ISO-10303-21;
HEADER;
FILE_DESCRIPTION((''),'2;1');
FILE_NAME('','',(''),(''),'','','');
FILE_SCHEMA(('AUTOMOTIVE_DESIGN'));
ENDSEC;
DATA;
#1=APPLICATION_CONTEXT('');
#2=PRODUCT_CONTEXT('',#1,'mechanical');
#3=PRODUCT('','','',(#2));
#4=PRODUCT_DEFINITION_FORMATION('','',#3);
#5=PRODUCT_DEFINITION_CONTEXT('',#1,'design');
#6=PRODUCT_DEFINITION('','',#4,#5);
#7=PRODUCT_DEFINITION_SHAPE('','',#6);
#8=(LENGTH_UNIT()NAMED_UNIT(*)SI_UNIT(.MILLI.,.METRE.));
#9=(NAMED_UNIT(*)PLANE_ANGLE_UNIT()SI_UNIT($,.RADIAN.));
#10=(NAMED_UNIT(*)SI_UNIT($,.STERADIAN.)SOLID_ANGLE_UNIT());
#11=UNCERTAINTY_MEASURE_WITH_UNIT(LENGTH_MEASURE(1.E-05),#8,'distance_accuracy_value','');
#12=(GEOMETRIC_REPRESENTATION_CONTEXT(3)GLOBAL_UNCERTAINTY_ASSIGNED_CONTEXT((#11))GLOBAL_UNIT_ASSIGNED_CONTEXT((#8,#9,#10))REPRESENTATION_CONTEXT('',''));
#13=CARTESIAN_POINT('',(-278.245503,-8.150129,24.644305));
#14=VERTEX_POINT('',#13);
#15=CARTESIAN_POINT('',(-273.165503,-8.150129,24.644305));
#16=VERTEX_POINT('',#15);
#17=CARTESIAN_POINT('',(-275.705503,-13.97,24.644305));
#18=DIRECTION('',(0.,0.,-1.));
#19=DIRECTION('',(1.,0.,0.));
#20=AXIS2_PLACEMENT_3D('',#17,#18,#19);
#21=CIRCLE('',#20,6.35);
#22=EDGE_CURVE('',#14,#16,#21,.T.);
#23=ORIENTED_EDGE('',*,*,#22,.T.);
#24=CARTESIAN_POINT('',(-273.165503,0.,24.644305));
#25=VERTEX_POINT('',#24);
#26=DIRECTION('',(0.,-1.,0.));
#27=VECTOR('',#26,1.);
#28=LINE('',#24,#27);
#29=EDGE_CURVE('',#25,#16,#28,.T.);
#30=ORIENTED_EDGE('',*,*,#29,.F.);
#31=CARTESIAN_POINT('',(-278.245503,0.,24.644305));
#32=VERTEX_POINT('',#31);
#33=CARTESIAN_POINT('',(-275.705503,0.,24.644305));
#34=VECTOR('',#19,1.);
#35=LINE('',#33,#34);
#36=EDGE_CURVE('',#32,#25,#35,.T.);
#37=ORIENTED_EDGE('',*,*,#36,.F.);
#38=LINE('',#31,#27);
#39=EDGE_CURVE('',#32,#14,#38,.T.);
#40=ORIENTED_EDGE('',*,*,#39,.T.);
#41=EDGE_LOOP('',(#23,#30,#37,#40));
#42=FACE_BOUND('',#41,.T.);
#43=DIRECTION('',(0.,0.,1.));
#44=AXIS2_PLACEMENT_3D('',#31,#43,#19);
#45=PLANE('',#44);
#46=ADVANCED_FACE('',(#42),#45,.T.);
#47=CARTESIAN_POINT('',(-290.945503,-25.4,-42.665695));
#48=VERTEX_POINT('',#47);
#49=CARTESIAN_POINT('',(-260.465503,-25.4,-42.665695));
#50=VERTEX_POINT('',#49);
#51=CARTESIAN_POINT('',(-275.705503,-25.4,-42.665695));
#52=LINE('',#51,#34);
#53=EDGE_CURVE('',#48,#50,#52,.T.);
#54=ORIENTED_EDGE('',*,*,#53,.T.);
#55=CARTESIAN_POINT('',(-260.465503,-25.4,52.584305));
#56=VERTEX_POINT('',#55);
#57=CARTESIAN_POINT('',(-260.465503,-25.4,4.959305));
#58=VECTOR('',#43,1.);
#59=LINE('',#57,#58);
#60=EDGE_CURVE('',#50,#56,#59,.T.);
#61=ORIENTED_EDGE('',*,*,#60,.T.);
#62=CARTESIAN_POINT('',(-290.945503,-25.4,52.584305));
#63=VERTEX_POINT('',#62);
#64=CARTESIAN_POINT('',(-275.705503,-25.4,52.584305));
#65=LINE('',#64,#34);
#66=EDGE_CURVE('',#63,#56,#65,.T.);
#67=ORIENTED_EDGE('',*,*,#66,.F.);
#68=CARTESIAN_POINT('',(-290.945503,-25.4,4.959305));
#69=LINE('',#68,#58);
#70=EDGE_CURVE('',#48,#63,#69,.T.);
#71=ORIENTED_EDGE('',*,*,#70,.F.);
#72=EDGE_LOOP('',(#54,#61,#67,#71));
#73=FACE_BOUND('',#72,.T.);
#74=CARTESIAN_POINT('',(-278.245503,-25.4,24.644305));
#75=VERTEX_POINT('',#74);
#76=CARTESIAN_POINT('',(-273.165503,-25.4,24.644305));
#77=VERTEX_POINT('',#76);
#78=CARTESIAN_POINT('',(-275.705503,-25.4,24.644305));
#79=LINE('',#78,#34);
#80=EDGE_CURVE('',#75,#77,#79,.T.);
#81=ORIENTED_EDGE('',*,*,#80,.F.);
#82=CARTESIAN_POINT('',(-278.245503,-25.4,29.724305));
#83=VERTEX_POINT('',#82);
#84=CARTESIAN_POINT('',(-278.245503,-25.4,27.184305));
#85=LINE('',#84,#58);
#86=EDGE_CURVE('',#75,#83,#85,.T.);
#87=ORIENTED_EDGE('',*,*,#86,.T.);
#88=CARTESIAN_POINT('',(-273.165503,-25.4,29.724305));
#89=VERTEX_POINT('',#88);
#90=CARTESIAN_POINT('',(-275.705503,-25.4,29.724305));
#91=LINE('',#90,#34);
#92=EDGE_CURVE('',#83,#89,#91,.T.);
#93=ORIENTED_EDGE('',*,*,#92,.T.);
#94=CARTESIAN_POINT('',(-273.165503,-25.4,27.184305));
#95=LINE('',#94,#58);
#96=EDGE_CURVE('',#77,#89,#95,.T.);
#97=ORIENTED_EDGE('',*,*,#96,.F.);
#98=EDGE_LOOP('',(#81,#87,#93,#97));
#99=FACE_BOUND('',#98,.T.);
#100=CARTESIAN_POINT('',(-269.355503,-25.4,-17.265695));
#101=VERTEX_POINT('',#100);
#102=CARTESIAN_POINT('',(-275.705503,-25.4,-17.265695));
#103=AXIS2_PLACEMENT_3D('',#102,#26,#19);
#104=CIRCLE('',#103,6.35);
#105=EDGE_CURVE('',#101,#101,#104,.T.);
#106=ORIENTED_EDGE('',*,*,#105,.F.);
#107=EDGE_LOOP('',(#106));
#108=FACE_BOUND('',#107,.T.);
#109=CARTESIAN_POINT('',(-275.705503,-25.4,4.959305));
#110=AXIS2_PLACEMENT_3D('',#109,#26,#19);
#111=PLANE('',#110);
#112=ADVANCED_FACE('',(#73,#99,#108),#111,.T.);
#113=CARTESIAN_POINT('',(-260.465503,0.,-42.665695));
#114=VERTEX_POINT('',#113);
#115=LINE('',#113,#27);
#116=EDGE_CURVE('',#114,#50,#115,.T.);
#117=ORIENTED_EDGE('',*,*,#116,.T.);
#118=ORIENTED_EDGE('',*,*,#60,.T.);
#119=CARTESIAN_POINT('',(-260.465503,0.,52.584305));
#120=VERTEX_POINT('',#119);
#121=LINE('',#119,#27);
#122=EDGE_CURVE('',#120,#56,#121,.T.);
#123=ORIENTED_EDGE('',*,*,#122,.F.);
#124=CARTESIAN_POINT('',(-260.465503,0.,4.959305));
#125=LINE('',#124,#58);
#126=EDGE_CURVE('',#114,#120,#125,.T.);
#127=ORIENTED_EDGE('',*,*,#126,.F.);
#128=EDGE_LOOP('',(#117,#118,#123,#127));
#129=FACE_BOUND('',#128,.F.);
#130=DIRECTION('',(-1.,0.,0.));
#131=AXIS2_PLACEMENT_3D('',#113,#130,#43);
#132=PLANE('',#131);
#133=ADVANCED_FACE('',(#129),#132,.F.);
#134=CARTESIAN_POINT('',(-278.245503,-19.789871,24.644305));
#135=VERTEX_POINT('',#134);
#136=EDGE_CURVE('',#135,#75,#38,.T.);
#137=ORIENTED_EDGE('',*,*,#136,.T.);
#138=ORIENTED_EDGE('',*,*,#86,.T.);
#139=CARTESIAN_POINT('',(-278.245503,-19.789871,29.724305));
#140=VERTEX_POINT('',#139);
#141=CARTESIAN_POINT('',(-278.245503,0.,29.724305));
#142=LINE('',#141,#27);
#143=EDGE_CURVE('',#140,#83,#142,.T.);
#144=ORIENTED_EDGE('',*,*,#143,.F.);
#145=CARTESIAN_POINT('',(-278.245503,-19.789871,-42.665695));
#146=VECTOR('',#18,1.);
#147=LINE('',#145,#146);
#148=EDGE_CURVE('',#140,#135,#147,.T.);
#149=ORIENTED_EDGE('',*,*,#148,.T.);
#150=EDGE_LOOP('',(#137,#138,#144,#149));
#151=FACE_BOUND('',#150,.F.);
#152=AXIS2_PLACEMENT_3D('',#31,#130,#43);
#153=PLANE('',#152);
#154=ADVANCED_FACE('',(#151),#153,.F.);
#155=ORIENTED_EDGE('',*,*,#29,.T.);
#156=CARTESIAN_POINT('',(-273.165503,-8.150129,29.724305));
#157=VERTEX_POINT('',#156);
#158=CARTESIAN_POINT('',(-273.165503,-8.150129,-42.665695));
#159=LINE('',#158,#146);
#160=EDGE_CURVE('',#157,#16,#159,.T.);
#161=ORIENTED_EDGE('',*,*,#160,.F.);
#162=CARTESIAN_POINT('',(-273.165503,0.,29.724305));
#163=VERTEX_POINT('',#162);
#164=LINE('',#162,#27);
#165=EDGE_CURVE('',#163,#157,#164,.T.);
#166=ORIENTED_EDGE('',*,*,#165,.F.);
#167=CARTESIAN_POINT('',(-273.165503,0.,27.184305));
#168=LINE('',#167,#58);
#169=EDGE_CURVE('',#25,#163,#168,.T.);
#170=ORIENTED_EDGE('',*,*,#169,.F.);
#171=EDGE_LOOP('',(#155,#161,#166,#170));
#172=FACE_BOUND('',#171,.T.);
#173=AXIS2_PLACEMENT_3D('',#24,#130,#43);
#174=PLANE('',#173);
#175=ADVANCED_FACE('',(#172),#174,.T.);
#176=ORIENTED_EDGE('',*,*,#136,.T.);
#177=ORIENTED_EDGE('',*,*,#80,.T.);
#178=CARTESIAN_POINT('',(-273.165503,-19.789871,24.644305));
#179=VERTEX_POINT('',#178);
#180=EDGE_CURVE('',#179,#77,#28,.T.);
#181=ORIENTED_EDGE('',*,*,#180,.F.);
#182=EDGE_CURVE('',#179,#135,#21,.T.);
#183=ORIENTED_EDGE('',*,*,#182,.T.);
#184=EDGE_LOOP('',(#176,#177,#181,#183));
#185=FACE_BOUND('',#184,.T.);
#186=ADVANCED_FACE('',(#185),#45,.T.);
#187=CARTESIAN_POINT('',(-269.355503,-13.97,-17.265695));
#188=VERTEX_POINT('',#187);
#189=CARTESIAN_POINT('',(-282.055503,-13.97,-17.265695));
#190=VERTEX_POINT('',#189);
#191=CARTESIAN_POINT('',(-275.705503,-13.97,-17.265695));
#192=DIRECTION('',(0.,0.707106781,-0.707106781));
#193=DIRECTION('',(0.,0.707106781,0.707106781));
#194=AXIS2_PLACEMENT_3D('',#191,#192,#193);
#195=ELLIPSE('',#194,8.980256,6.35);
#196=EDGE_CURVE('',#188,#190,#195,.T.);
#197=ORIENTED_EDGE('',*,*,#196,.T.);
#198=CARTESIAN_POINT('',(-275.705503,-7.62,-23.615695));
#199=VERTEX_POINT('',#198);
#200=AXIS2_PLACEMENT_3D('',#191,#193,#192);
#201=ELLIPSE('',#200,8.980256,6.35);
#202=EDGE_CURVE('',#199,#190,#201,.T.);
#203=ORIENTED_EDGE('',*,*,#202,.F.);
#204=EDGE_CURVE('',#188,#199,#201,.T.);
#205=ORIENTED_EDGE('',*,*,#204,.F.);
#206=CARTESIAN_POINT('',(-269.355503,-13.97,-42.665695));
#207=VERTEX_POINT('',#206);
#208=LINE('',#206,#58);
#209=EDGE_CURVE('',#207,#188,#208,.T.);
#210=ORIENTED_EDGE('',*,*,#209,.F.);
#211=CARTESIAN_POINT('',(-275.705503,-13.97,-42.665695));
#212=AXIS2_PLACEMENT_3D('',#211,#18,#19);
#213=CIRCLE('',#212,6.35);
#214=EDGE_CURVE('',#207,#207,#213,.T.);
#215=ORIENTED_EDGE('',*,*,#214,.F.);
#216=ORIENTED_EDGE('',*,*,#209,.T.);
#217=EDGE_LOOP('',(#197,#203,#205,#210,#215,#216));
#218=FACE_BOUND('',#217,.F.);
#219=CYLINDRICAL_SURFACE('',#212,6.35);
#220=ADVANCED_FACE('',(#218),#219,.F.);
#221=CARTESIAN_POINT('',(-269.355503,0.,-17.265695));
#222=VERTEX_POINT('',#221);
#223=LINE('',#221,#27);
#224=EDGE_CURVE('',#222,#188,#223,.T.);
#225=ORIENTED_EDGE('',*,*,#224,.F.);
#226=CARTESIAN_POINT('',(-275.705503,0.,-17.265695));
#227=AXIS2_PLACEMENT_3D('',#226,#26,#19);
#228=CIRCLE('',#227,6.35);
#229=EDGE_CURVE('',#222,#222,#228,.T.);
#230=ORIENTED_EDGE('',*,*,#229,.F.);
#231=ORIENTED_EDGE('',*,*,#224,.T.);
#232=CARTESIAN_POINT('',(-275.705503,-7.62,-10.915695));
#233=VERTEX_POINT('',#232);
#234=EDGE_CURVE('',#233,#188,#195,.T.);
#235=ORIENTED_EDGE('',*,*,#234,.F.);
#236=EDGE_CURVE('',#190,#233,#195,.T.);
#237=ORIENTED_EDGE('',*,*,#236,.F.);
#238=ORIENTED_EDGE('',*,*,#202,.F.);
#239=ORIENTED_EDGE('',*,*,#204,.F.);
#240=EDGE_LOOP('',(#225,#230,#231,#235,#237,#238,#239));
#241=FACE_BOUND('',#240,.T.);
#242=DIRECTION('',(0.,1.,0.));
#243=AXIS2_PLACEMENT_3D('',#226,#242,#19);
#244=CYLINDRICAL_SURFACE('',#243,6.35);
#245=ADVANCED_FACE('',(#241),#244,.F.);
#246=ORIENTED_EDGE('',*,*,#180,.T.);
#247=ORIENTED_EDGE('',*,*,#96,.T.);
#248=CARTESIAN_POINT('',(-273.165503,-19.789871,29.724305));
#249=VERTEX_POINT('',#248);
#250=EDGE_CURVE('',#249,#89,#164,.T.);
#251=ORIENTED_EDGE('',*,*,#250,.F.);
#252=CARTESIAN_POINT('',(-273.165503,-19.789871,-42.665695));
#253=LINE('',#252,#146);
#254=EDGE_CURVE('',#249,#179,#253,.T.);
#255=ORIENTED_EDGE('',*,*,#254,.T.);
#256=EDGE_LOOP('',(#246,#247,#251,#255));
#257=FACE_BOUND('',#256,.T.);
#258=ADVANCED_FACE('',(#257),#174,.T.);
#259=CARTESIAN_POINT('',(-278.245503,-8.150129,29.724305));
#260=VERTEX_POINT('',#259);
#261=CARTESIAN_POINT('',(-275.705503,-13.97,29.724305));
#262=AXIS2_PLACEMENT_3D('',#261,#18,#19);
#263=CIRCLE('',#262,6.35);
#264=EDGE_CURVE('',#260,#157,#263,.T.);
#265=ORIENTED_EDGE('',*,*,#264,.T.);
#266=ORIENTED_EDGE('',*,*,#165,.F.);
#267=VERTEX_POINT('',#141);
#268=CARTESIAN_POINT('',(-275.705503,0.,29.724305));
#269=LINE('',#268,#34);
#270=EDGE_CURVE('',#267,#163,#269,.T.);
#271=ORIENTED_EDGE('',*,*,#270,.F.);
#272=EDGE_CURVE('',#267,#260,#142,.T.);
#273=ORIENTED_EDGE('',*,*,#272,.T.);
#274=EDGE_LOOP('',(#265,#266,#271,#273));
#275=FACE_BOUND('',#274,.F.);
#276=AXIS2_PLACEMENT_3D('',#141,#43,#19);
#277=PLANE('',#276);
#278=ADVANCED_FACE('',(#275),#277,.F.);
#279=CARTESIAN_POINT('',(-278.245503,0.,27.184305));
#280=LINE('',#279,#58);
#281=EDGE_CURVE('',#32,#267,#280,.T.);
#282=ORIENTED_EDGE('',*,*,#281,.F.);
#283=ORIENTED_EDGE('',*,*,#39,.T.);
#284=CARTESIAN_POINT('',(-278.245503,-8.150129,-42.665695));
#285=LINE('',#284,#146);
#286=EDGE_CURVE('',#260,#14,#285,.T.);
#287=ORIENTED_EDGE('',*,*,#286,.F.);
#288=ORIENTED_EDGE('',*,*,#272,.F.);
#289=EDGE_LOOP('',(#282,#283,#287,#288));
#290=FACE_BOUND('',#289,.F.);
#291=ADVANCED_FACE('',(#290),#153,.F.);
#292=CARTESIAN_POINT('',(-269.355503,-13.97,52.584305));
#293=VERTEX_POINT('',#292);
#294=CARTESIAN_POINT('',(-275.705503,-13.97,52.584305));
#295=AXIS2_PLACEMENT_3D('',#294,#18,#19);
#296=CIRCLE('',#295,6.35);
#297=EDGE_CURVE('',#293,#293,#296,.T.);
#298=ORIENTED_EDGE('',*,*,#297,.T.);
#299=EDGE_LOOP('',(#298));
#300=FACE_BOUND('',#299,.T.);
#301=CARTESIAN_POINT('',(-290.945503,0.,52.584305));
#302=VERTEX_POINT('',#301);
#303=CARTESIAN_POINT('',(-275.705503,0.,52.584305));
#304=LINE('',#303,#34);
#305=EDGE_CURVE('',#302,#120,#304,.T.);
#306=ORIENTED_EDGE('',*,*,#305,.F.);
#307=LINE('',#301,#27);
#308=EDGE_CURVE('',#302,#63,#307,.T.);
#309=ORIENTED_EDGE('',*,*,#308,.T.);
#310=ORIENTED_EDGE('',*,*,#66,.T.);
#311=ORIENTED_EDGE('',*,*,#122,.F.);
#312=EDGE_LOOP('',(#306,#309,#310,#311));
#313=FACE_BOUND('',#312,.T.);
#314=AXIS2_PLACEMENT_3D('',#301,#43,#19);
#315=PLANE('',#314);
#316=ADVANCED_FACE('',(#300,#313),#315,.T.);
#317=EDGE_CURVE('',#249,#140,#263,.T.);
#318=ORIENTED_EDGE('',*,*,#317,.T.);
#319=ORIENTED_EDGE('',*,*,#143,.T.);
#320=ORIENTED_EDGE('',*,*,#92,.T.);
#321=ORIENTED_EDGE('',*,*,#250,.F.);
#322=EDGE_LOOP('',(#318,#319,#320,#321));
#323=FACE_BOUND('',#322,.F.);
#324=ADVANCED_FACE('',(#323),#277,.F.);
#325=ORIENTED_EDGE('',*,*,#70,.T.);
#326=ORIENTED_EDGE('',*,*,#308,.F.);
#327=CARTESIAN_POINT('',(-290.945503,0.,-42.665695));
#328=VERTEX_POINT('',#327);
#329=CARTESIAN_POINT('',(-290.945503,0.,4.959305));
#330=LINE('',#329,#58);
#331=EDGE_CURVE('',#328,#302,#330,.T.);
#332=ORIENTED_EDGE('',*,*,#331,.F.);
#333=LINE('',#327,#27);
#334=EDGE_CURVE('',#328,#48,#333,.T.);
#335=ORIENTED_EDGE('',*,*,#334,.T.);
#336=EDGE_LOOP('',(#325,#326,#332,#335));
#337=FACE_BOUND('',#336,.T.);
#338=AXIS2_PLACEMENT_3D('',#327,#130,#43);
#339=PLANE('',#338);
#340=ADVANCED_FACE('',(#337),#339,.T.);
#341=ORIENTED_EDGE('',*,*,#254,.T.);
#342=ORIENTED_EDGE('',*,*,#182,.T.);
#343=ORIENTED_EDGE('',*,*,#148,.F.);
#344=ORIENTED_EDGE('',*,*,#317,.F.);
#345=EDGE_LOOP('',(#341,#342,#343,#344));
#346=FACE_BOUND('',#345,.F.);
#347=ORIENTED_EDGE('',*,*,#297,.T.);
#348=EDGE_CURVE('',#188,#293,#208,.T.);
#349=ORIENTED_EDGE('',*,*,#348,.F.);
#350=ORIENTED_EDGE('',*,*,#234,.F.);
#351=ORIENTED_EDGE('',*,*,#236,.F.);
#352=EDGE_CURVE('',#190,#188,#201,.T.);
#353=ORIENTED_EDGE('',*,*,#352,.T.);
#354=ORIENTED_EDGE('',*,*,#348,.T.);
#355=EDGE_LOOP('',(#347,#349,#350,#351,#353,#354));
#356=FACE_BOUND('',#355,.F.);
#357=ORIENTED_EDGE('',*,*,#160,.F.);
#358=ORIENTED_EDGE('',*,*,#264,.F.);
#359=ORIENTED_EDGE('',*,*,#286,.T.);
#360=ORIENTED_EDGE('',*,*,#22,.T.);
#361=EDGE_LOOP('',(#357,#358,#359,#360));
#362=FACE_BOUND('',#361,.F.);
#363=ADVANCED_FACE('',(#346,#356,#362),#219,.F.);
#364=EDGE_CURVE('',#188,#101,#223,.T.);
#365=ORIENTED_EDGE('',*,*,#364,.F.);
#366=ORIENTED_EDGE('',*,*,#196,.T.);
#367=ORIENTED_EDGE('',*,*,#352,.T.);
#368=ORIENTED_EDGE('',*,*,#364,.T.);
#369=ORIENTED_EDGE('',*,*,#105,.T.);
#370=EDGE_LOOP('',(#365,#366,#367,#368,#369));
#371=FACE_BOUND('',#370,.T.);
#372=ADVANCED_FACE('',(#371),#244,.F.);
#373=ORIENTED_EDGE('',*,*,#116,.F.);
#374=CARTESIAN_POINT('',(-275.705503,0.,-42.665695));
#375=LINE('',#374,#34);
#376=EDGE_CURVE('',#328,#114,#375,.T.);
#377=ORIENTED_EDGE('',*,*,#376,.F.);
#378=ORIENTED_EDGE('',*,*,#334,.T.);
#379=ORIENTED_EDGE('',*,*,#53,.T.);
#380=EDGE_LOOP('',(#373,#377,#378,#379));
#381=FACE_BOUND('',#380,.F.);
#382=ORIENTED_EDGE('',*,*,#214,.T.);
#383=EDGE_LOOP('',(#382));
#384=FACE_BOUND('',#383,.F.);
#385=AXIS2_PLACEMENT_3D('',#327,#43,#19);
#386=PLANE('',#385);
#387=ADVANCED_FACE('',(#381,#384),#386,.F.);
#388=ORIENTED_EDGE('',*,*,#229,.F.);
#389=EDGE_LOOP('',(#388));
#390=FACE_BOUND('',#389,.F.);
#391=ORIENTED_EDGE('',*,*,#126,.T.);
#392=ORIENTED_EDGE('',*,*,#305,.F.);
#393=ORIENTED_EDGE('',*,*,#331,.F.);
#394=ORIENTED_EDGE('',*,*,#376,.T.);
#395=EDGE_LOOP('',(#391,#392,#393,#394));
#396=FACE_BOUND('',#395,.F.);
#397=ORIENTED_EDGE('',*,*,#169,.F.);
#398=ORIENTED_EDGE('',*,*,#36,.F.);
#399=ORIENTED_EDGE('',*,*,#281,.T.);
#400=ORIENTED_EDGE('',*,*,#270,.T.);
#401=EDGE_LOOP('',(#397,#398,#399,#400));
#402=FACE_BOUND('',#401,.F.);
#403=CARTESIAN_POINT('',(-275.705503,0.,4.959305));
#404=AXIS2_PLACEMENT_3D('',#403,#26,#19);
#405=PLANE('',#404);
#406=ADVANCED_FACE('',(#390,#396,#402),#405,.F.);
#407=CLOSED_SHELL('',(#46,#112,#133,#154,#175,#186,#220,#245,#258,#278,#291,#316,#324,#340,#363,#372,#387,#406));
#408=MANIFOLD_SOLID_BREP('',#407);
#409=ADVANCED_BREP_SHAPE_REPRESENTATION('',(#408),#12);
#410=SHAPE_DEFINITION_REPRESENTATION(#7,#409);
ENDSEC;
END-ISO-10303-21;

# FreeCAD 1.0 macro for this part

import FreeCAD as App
import Part
import Sketcher
from FreeCAD import Vector
Q = App.Units.Quantity

doc = App.newDocument("Part")
params = doc.addObject("Spreadsheet::Sheet", "Params")
for row, (alias, value) in enumerate([
    ("sketch1_diameter", "0.5 in"),
    ("sketch1_width", "1.2 in"),
    ("sketch1_width2", "0.2 in"),
    ("sketch1_height", "3.75 in"),
    ("pad1_length", "1 in"),
    ("sketch2_diameter", "0.5 in"),
], start=1):
    params.set(f"A{row}", alias)
    params.set(f"B{row}", "=" + value)
    params.setAlias(f"B{row}", alias)

body = doc.addObject("PartDesign::Body", "Body")

sketch1 = doc.addObject("Sketcher::SketchObject", "Sketch")
body.addObject(sketch1)
sketch1.AttachmentSupport = (doc.XZ_Plane, [""])
sketch1.MapMode = "FlatFace"
sketch1.addGeometry(Part.LineSegment(Vector(-291, 53, 0), Vector(-291, -43, 0)), False)
sketch1.addGeometry(Part.LineSegment(Vector(-291, -43, 0), Vector(-260, -43, 0)), False)
sketch1.addGeometry(Part.LineSegment(Vector(-260, -43, 0), Vector(-260, 53, 0)), False)
sketch1.addGeometry(Part.LineSegment(Vector(-260, 53, 0), Vector(-291, 53, 0)), False)
sketch1.addGeometry(Part.Circle(Vector(-276, -17, 0), Vector(0, 0, 1), 6), False)
sketch1.addGeometry(Part.LineSegment(Vector(-273, 25, 0), Vector(-278, 25, 0)), False)
sketch1.addGeometry(Part.LineSegment(Vector(-278, 25, 0), Vector(-278, 30, 0)), False)
sketch1.addGeometry(Part.LineSegment(Vector(-278, 30, 0), Vector(-273, 30, 0)), False)
sketch1.addGeometry(Part.LineSegment(Vector(-273, 30, 0), Vector(-273, 25, 0)), False)
sketch1.addConstraint(Sketcher.Constraint("Coincident", 0, 2, 1, 1))
sketch1.addConstraint(Sketcher.Constraint("Coincident", 1, 2, 2, 1))
sketch1.addConstraint(Sketcher.Constraint("Coincident", 2, 2, 3, 1))
sketch1.addConstraint(Sketcher.Constraint("Coincident", 3, 2, 0, 1))
sketch1.addConstraint(Sketcher.Constraint("Coincident", 5, 2, 6, 1))
sketch1.addConstraint(Sketcher.Constraint("Coincident", 6, 2, 7, 1))
sketch1.addConstraint(Sketcher.Constraint("Coincident", 7, 2, 8, 1))
sketch1.addConstraint(Sketcher.Constraint("Coincident", 8, 2, 5, 1))
sketch1.addConstraint(Sketcher.Constraint("Vertical", 0))
sketch1.addConstraint(Sketcher.Constraint("Horizontal", 1))
sketch1.addConstraint(Sketcher.Constraint("Vertical", 2))
sketch1.addConstraint(Sketcher.Constraint("Horizontal", 3))
sketch1.addConstraint(Sketcher.Constraint("Horizontal", 5))
sketch1.addConstraint(Sketcher.Constraint("Vertical", 6))
sketch1.addConstraint(Sketcher.Constraint("Horizontal", 7))
sketch1.addConstraint(Sketcher.Constraint("Vertical", 8))
sketch1.addConstraint(Sketcher.Constraint("Equal", 7, 6))
sketch1.addConstraint(Sketcher.Constraint("Diameter", 4, Q("0.5 in")))
sketch1.addConstraint(Sketcher.Constraint("DistanceX", 1, 1, 1, 2, Q("1.2 in")))
sketch1.addConstraint(Sketcher.Constraint("DistanceX", 5, 2, 5, 1, Q("0.2 in")))
sketch1.addConstraint(Sketcher.Constraint("DistanceY", 0, 2, 4, 3, Q("1 in")))
sketch1.addConstraint(Sketcher.Constraint("DistanceY", 0, 2, 0, 1, Q("3.75 in")))
sketch1.addConstraint(Sketcher.Constraint("DistanceX", 0, 2, 4, 3, Q("0.6 in")))
sketch1.addConstraint(Sketcher.Constraint("DistanceX", 3, 2, 5, 2, Q("0.5 in")))
sketch1.addConstraint(Sketcher.Constraint("DistanceY", 5, 2, 3, 2, Q("1.1 in")))
sketch1.addConstraint(Sketcher.Constraint("DistanceX", 4, 3, -1, 1, Q("275.705503 mm")))
sketch1.addConstraint(Sketcher.Constraint("DistanceY", 4, 3, -1, 1, Q("17.265695 mm")))
sketch1.setExpression("Constraints[17]", "Params.sketch1_diameter")
sketch1.setExpression("Constraints[18]", "Params.sketch1_width")
sketch1.setExpression("Constraints[19]", "Params.sketch1_width2")
sketch1.setExpression("Constraints[21]", "Params.sketch1_height")
pad1 = doc.addObject("PartDesign::Pad", "Pad")
body.addObject(pad1)
pad1.Profile = sketch1
pad1.setExpression("Length", "Params.pad1_length")

sketch2 = doc.addObject("Sketcher::SketchObject", "Sketch001")
body.addObject(sketch2)
sketch2.AttachmentSupport = (doc.XY_Plane, [""])
sketch2.MapMode = "FlatFace"
sketch2.AttachmentOffset = App.Placement(Vector(0, 0, -42.665695), App.Rotation())
sketch2.addGeometry(Part.Circle(Vector(-276, -14, 0), Vector(0, 0, 1), 6), False)
sketch2.addConstraint(Sketcher.Constraint("Diameter", 0, Q("0.5 in")))
sketch2.addConstraint(Sketcher.Constraint("DistanceY", 0, 3, -1, 1, Q("0.55 in")))
sketch2.addConstraint(Sketcher.Constraint("DistanceX", 0, 3, -1, 1, Q("275.705503 mm")))
sketch2.setExpression("Constraints[0]", "Params.sketch2_diameter")
pocket1 = doc.addObject("PartDesign::Pocket", "Pocket")
body.addObject(pocket1)
pocket1.Profile = sketch2
pocket1.Type = "ThroughAll"
pocket1.Reversed = True

doc.recompute()
